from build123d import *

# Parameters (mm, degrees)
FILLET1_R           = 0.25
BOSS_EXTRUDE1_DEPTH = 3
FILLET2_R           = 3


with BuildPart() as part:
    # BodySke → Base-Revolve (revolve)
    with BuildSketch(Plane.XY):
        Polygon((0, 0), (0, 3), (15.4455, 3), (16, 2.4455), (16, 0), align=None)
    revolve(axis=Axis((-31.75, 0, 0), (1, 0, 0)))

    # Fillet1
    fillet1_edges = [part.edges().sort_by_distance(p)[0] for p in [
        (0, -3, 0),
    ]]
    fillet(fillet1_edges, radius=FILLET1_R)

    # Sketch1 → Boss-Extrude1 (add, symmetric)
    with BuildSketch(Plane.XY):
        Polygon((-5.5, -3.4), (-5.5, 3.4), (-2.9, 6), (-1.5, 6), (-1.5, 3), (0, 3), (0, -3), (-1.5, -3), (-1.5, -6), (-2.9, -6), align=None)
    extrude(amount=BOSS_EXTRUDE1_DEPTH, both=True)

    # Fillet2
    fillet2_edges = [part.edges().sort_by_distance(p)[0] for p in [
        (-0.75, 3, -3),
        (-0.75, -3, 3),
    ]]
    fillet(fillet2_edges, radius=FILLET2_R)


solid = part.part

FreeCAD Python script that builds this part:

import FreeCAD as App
import Part
import Sketcher

V = App.Vector
Q = App.Units.Quantity


def edges_at(feature, points):
    """Names of the edges that pass closest to the given points."""
    edges = feature.Shape.Edges
    near = lambda p: min(range(len(edges)), key=lambda i: edges[i].distToShape(Part.Vertex(*p))[0])
    return sorted({f"Edge{near(p) + 1}" for p in points})

doc = App.newDocument("Part")
body = doc.addObject("PartDesign::Body", "Body")

# Sketch on XY plane
sketch1 = body.newObject("Sketcher::SketchObject", "Sketch")
sketch1.AttachmentSupport = (doc.getObject("XY_Plane"), [""])
sketch1.MapMode = "FlatFace"
sketch1.addGeometry([
    Part.LineSegment(V(0, 3, 0), V(0, 0, 0)),  # 0
    Part.LineSegment(V(0, 0, 0), V(16, 0, 0)),  # 1
    Part.LineSegment(V(16, 0, 0), V(16, 2.4, 0)),  # 2
    Part.LineSegment(V(16, 2.4, 0), V(15.4, 3, 0)),  # 3
    Part.LineSegment(V(15.4, 3, 0), V(0, 3, 0)),  # 4
], False)
sketch1.addConstraint([
    Sketcher.Constraint("Coincident", 0, 2, 1, 1),
    Sketcher.Constraint("Coincident", 1, 2, 2, 1),
    Sketcher.Constraint("Coincident", 2, 2, 3, 1),
    Sketcher.Constraint("Coincident", 3, 2, 4, 1),
    Sketcher.Constraint("Coincident", 4, 2, 0, 1),
    Sketcher.Constraint("Vertical", 0),
    Sketcher.Constraint("Horizontal", 1),
    Sketcher.Constraint("Vertical", 2),
    Sketcher.Constraint("Horizontal", 4),
    Sketcher.Constraint("Coincident", 0, 2, -1, 1),
    Sketcher.Constraint("DistanceX", 1, 1, 1, 2, 16.0),
    Sketcher.Constraint("DistanceY", 0, 2, 0, 1, 3.0),
    Sketcher.Constraint("Angle", 3, Q("135 deg")),
    Sketcher.Constraint("DistanceX", 4, 2, 4, 1, 15.4455),
])
revolution = body.newObject("PartDesign::Revolution", "Revolution")
revolution.Profile = sketch1
revolution.ReferenceAxis = (sketch1, ["H_Axis"])
revolution.Angle = 360
doc.recompute()

fillet = body.newObject("PartDesign::Fillet", "Fillet")
fillet.Base = (revolution, edges_at(revolution, [(0, -3, 0)]))
fillet.Radius = 0.25

# Sketch on XY plane
sketch2 = body.newObject("Sketcher::SketchObject", "Sketch001")
sketch2.AttachmentSupport = (doc.getObject("XY_Plane"), [""])
sketch2.MapMode = "FlatFace"
sketch2.addGeometry([
    Part.LineSegment(V(-5.5, 3.4, 0), V(-5.5, -3.4, 0)),  # 0
    Part.LineSegment(V(-5.5, -3.4, 0), V(-2.9, -6, 0)),  # 1
    Part.LineSegment(V(-2.9, -6, 0), V(-1.5, -6, 0)),  # 2
    Part.LineSegment(V(-1.5, -6, 0), V(-1.5, -3, 0)),  # 3
    Part.LineSegment(V(-1.5, -3, 0), V(0, -3, 0)),  # 4
    Part.LineSegment(V(0, -3, 0), V(0, 3, 0)),  # 5
    Part.LineSegment(V(0, 3, 0), V(-1.5, 3, 0)),  # 6
    Part.LineSegment(V(-1.5, 3, 0), V(-1.5, 6, 0)),  # 7
    Part.LineSegment(V(-1.5, 6, 0), V(-2.9, 6, 0)),  # 8
    Part.LineSegment(V(-2.9, 6, 0), V(-5.5, 3.4, 0)),  # 9
], False)
sketch2.addConstraint([
    Sketcher.Constraint("Coincident", 0, 2, 1, 1),
    Sketcher.Constraint("Coincident", 1, 2, 2, 1),
    Sketcher.Constraint("Coincident", 2, 2, 3, 1),
    Sketcher.Constraint("Coincident", 3, 2, 4, 1),
    Sketcher.Constraint("Coincident", 4, 2, 5, 1),
    Sketcher.Constraint("Coincident", 5, 2, 6, 1),
    Sketcher.Constraint("Coincident", 6, 2, 7, 1),
    Sketcher.Constraint("Coincident", 7, 2, 8, 1),
    Sketcher.Constraint("Coincident", 8, 2, 9, 1),
    Sketcher.Constraint("Coincident", 9, 2, 0, 1),
    Sketcher.Constraint("Vertical", 0),
    Sketcher.Constraint("Horizontal", 2),
    Sketcher.Constraint("Vertical", 3),
    Sketcher.Constraint("Horizontal", 4),
    Sketcher.Constraint("Vertical", 5),
    Sketcher.Constraint("Horizontal", 6),
    Sketcher.Constraint("Vertical", 7),
    Sketcher.Constraint("Horizontal", 8),
    Sketcher.Constraint("Symmetric", 4, 2, 5, 2, -1, 1),
    Sketcher.Constraint("Symmetric", 2, 2, 7, 2, -1),
    Sketcher.Constraint("Perpendicular", 1, 9),
    Sketcher.Constraint("Vertical", 1, 2, 8, 2),
    Sketcher.Constraint("Equal", 1, 9),
    Sketcher.Constraint("DistanceY", 3, 1, 3, 2, 3.0),
    Sketcher.Constraint("DistanceY", 5, 1, 5, 2, 6.0),
    Sketcher.Constraint("DistanceX", 2, 1, 2, 2, 1.4),
    Sketcher.Constraint("DistanceX", 4, 1, 4, 2, 1.5),
    Sketcher.Constraint("DistanceY", 0, 2, 0, 1, 6.8),
])
pad1 = body.newObject("PartDesign::Pad", "Pad")
pad1.Profile = sketch2
pad1.Length = 6
pad1.Midplane = True
doc.recompute()

fillet2 = body.newObject("PartDesign::Fillet", "Fillet001")
fillet2.Base = (pad1, edges_at(pad1, [(-0.75, 3, -3), (-0.75, -3, 3)]))
fillet2.Radius = 3

doc.recompute()
